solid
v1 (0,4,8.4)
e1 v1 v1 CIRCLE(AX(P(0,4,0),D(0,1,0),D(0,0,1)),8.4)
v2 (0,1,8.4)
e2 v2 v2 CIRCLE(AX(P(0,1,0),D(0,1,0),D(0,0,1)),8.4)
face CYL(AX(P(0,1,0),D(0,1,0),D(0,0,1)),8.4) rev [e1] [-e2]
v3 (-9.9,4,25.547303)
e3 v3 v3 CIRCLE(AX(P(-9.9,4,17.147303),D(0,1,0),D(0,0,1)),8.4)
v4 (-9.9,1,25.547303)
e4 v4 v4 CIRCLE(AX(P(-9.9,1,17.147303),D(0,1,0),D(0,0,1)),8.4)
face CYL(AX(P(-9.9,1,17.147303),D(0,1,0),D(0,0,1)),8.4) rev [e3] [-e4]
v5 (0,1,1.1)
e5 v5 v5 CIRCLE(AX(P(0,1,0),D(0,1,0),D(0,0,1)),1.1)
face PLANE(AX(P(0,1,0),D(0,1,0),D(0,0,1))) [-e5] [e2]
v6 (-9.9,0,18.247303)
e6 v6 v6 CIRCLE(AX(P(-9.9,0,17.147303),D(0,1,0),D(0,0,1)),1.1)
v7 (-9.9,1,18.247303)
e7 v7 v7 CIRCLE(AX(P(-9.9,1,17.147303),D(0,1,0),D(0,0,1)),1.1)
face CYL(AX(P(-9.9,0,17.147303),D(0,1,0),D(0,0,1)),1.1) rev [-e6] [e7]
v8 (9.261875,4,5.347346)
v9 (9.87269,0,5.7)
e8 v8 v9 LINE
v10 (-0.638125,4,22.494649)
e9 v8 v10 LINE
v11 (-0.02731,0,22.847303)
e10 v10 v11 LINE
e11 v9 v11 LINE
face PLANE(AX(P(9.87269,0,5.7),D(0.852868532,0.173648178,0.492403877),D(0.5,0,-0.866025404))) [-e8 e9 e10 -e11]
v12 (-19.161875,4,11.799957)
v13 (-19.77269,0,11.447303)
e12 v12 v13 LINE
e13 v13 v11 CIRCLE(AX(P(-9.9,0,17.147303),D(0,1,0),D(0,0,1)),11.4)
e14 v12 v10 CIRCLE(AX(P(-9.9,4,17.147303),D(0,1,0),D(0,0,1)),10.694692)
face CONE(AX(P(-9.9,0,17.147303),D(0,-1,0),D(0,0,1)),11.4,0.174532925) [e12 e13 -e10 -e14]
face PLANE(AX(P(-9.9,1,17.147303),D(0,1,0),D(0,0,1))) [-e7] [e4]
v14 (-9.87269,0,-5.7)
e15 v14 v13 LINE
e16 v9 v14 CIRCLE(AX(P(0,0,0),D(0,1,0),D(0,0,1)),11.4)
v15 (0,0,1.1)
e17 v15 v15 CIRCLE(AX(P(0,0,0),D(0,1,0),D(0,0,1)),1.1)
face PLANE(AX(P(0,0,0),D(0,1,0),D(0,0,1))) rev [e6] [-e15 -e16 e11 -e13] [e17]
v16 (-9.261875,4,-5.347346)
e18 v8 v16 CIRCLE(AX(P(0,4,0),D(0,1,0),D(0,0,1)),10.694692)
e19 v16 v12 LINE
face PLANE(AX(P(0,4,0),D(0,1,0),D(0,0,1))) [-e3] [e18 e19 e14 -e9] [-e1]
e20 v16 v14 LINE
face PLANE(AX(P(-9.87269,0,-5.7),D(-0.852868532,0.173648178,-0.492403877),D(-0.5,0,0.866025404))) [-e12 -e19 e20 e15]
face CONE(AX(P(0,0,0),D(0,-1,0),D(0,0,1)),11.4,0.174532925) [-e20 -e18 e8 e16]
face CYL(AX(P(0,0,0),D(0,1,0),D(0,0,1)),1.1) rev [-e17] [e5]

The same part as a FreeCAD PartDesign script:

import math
import FreeCAD as App
import Part
import Sketcher
Q = App.Units.Quantity

doc = App.newDocument("Part")
body = doc.addObject("PartDesign::Body", "Body")

# Sketch on XZ plane
sketch1 = doc.addObject("Sketcher::SketchObject", "Sketch")
body.addObject(sketch1)
sketch1.AttachmentSupport = (doc.XZ_Plane, [""])
sketch1.MapMode = "FlatFace"
sketch1.addGeometry([
    Part.ArcOfCircle(Part.Circle(App.Vector(-9.9, 17.147303, 0), App.Vector(0, 0, 1), 11.4), math.radians(30), math.radians(210)),
    Part.LineSegment(App.Vector(-0.02731, 22.847303, 0), App.Vector(9.87269, 5.7, 0)),
    Part.ArcOfCircle(Part.Circle(App.Vector(0, 0, 0), App.Vector(0, 0, 1), 11.4), math.radians(-150), math.radians(30)),
    Part.LineSegment(App.Vector(-9.87269, -5.7, 0), App.Vector(-19.77269, 11.447303, 0)),
], False)
sketch1.addConstraint([
    Sketcher.Constraint("Tangent", 0, 1, 1, 1),
    Sketcher.Constraint("Tangent", 1, 2, 2, 2),
    Sketcher.Constraint("Tangent", 2, 1, 3, 1),
    Sketcher.Constraint("Tangent", 3, 2, 0, 2),
    Sketcher.Constraint("Coincident", 2, 3, -1, 1),
    Sketcher.Constraint("Equal", 0, 2),
    Sketcher.Constraint("Radius", 0, Q("11.4 mm")),
    Sketcher.Constraint("Angle", 1, Q("-60 deg")),
    Sketcher.Constraint("Distance", 1, Q("19.8 mm")),
])
pad1 = doc.addObject("PartDesign::Pad", "Pad")
body.addObject(pad1)
pad1.Profile = sketch1
pad1.Length = 4
pad1.Reversed = True
pad1.TaperAngle = -10

# Sketch on XZ plane
sketch2 = doc.addObject("Sketcher::SketchObject", "Sketch001")
body.addObject(sketch2)
sketch2.AttachmentSupport = (doc.XZ_Plane, [""])
sketch2.MapMode = "FlatFace"
sketch2.AttachmentOffset = App.Placement(App.Vector(0, 0, -4), App.Rotation())
sketch2.addGeometry([
    Part.Circle(App.Vector(-9.9, 17.147303, 0), App.Vector(0, 0, 1), 1.1),
    Part.Circle(App.Vector(0, 0, 0), App.Vector(0, 0, 1), 1.1),
], False)
sketch2.addConstraint([
    Sketcher.Constraint("Coincident", 1, 3, -1, 1),
    Sketcher.Constraint("Equal", 0, 1),
    Sketcher.Constraint("Diameter", 0, Q("2.2 mm")),
    Sketcher.Constraint("DistanceX", 0, 3, -1, 1, Q("9.9 mm")),
    Sketcher.Constraint("DistanceY", -1, 1, 0, 3, Q("17.147303 mm")),
])
pocket1 = doc.addObject("PartDesign::Pocket", "Pocket")
body.addObject(pocket1)
pocket1.Profile = sketch2
pocket1.Length = 4
pocket1.Reversed = True

# Sketch on XZ plane
sketch3 = doc.addObject("Sketcher::SketchObject", "Sketch002")
body.addObject(sketch3)
sketch3.AttachmentSupport = (doc.XZ_Plane, [""])
sketch3.MapMode = "FlatFace"
sketch3.AttachmentOffset = App.Placement(App.Vector(0, 0, -4), App.Rotation())
sketch3.addGeometry([
    Part.Circle(App.Vector(0, 0, 0), App.Vector(0, 0, 1), 8.4),
    Part.Circle(App.Vector(-9.9, 17.147303, 0), App.Vector(0, 0, 1), 8.4),
], False)
sketch3.addConstraint([
    Sketcher.Constraint("Coincident", 0, 3, -1, 1),
    Sketcher.Constraint("Equal", 0, 1),
    Sketcher.Constraint("Diameter", 0, Q("16.8 mm")),
    Sketcher.Constraint("DistanceX", 1, 3, -1, 1, Q("9.9 mm")),
    Sketcher.Constraint("DistanceY", -1, 1, 1, 3, Q("17.147303 mm")),
])
pocket2 = doc.addObject("PartDesign::Pocket", "Pocket001")
body.addObject(pocket2)
pocket2.Profile = sketch3
pocket2.Length = 3
pocket2.Reversed = True

doc.recompute()
